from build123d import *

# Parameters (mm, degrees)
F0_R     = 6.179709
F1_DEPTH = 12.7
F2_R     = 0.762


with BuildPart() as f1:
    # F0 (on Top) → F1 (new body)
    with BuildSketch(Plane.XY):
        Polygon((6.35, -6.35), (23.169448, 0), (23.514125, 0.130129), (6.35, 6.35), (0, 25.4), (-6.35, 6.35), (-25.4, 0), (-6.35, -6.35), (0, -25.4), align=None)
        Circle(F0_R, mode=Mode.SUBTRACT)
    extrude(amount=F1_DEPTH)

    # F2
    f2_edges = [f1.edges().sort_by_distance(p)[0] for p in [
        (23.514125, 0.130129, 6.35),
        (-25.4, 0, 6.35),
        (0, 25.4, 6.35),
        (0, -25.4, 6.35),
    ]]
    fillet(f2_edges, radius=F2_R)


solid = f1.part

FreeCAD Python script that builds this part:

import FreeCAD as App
import Part
import Sketcher
from FreeCAD import Vector
Q = App.Units.Quantity


def edges_at(feature, points):
    """Names of the edges that pass closest to the given points."""
    edges = feature.Shape.Edges
    near = lambda p: min(range(len(edges)), key=lambda i: edges[i].distToShape(Part.Vertex(*p))[0])
    return sorted({f"Edge{near(p) + 1}" for p in points})

doc = App.newDocument("Part")
body = doc.addObject("PartDesign::Body", "Body")

sketch1 = body.newObject("Sketcher::SketchObject", "Sketch")
sketch1.AttachmentSupport = (doc.getObject("XY_Plane"), [""])
sketch1.MapMode = "FlatFace"
sketch1.addGeometry(Part.LineSegment(Vector(6.35, -6.35, 0), Vector(23.169448, 0, 0)), False)
sketch1.addGeometry(Part.LineSegment(Vector(23.169448, 0, 0), Vector(23.514125, 0.130129, 0)), False)
sketch1.addGeometry(Part.LineSegment(Vector(23.514125, 0.130129, 0), Vector(6.35, 6.35, 0)), False)
sketch1.addGeometry(Part.LineSegment(Vector(6.35, 6.35, 0), Vector(0, 25.4, 0)), False)
sketch1.addGeometry(Part.LineSegment(Vector(0, 25.4, 0), Vector(-6.35, 6.35, 0)), False)
sketch1.addGeometry(Part.LineSegment(Vector(-6.35, 6.35, 0), Vector(-25.4, 0, 0)), False)
sketch1.addGeometry(Part.LineSegment(Vector(-25.4, 0, 0), Vector(-6.35, -6.35, 0)), False)
sketch1.addGeometry(Part.LineSegment(Vector(-6.35, -6.35, 0), Vector(0, -25.4, 0)), False)
sketch1.addGeometry(Part.LineSegment(Vector(0, -25.4, 0), Vector(6.35, -6.35, 0)), False)
sketch1.addGeometry(Part.Circle(Vector(0, 0, 0), Vector(0, 0, 1), 6.179709), False)
sketch1.addConstraint(Sketcher.Constraint("Coincident", 0, 2, 1, 1))
sketch1.addConstraint(Sketcher.Constraint("Coincident", 1, 2, 2, 1))
sketch1.addConstraint(Sketcher.Constraint("Coincident", 2, 2, 3, 1))
sketch1.addConstraint(Sketcher.Constraint("Coincident", 3, 2, 4, 1))
sketch1.addConstraint(Sketcher.Constraint("Coincident", 4, 2, 5, 1))
sketch1.addConstraint(Sketcher.Constraint("Coincident", 5, 2, 6, 1))
sketch1.addConstraint(Sketcher.Constraint("Coincident", 6, 2, 7, 1))
sketch1.addConstraint(Sketcher.Constraint("Coincident", 7, 2, 8, 1))
sketch1.addConstraint(Sketcher.Constraint("Coincident", 8, 2, 0, 1))
sketch1.addConstraint(Sketcher.Constraint("Coincident", 9, 3, -1, 1))
sketch1.addConstraint(Sketcher.Constraint("Symmetric", 2, 2, 6, 2, -1, 1))
sketch1.addConstraint(Sketcher.Constraint("Symmetric", 3, 2, 7, 2, -1, 1))
sketch1.addConstraint(Sketcher.Constraint("Symmetric", 4, 2, 8, 2, -1, 1))
sketch1.addConstraint(Sketcher.Constraint("Symmetric", 2, 2, 4, 2, -2))
sketch1.addConstraint(Sketcher.Constraint("PointOnObject", 0, 2, -1))
sketch1.addConstraint(Sketcher.Constraint("PointOnObject", 3, 2, -2))
sketch1.addConstraint(Sketcher.Constraint("PointOnObject", 5, 2, -1))
sketch1.addConstraint(Sketcher.Constraint("Parallel", 0, 1))
sketch1.addConstraint(Sketcher.Constraint("Perpendicular", 3, 5))
sketch1.addConstraint(Sketcher.Constraint("Equal", 4, 5))
sketch1.addConstraint(Sketcher.Constraint("DistanceY", -1, 1, 3, 2, Q("1 in")))
sketch1.addConstraint(Sketcher.Constraint("DistanceX", 4, 2, 2, 2, Q("0.5 in")))
sketch1.addConstraint(Sketcher.Constraint("Diameter", 9, 12.359418))
sketch1.addConstraint(Sketcher.Constraint("Distance", 0, 17.978218))
sketch1.addConstraint(Sketcher.Constraint("Distance", 2, 18.256341))
pad1 = body.newObject("PartDesign::Pad", "Pad")
pad1.Profile = sketch1
pad1.Length = Q("0.5 in")
doc.recompute()

fillet = body.newObject("PartDesign::Fillet", "Fillet")
fillet.Base = (pad1, edges_at(pad1, [
    (23.514, 0.13, 6.35),
    (-25.4, 0, 6.35),
    (0, 25.4, 6.35),
    (0, -25.4, 6.35),
]))
fillet.Radius = Q("0.03 in")

doc.recompute()
